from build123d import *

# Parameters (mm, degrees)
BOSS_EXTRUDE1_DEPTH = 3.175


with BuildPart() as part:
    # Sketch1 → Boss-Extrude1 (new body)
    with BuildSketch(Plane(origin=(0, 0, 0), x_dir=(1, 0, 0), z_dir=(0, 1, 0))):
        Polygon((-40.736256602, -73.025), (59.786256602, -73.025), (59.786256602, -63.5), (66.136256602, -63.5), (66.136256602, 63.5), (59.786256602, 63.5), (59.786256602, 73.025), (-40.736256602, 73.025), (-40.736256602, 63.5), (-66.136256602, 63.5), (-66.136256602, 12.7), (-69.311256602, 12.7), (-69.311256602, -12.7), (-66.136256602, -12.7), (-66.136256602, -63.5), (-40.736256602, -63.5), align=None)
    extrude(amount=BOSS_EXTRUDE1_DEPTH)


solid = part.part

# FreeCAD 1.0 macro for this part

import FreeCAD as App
import Part
import Sketcher
Q = App.Units.Quantity

doc = App.newDocument("Part")
body = doc.addObject("PartDesign::Body", "Body")

# Sketch on XZ plane
sketch1 = body.newObject("Sketcher::SketchObject", "Sketch")
sketch1.AttachmentSupport = (doc.getObject("XZ_Plane"), [""])
sketch1.MapMode = "FlatFace"
sketch1.addGeometry([
    Part.LineSegment(App.Vector(-40.7, 73, 0), App.Vector(59.8, 73, 0)),  # 0
    Part.LineSegment(App.Vector(59.8, 73, 0), App.Vector(59.8, 63.5, 0)),  # 1
    Part.LineSegment(App.Vector(59.8, 63.5, 0), App.Vector(66.1, 63.5, 0)),  # 2
    Part.LineSegment(App.Vector(66.1, 63.5, 0), App.Vector(66.1, -63.5, 0)),  # 3
    Part.LineSegment(App.Vector(66.1, -63.5, 0), App.Vector(59.8, -63.5, 0)),  # 4
    Part.LineSegment(App.Vector(59.8, -63.5, 0), App.Vector(59.8, -73, 0)),  # 5
    Part.LineSegment(App.Vector(59.8, -73, 0), App.Vector(-40.7, -73, 0)),  # 6
    Part.LineSegment(App.Vector(-40.7, -73, 0), App.Vector(-40.7, -63.5, 0)),  # 7
    Part.LineSegment(App.Vector(-40.7, -63.5, 0), App.Vector(-66.1, -63.5, 0)),  # 8
    Part.LineSegment(App.Vector(-66.1, -63.5, 0), App.Vector(-66.1, -12.7, 0)),  # 9
    Part.LineSegment(App.Vector(-66.1, -12.7, 0), App.Vector(-69.3, -12.7, 0)),  # 10
    Part.LineSegment(App.Vector(-69.3, -12.7, 0), App.Vector(-69.3, 12.7, 0)),  # 11
    Part.LineSegment(App.Vector(-69.3, 12.7, 0), App.Vector(-66.1, 12.7, 0)),  # 12
    Part.LineSegment(App.Vector(-66.1, 12.7, 0), App.Vector(-66.1, 63.5, 0)),  # 13
    Part.LineSegment(App.Vector(-66.1, 63.5, 0), App.Vector(-40.7, 63.5, 0)),  # 14
    Part.LineSegment(App.Vector(-40.7, 63.5, 0), App.Vector(-40.7, 73, 0)),  # 15
], False)
sketch1.addConstraint([
    Sketcher.Constraint("Coincident", 0, 2, 1, 1),
    Sketcher.Constraint("Coincident", 1, 2, 2, 1),
    Sketcher.Constraint("Coincident", 2, 2, 3, 1),
    Sketcher.Constraint("Coincident", 3, 2, 4, 1),
    Sketcher.Constraint("Coincident", 4, 2, 5, 1),
    Sketcher.Constraint("Coincident", 5, 2, 6, 1),
    Sketcher.Constraint("Coincident", 6, 2, 7, 1),
    Sketcher.Constraint("Coincident", 7, 2, 8, 1),
    Sketcher.Constraint("Coincident", 8, 2, 9, 1),
    Sketcher.Constraint("Coincident", 9, 2, 10, 1),
    Sketcher.Constraint("Coincident", 10, 2, 11, 1),
    Sketcher.Constraint("Coincident", 11, 2, 12, 1),
    Sketcher.Constraint("Coincident", 12, 2, 13, 1),
    Sketcher.Constraint("Coincident", 13, 2, 14, 1),
    Sketcher.Constraint("Coincident", 14, 2, 15, 1),
    Sketcher.Constraint("Coincident", 15, 2, 0, 1),
    Sketcher.Constraint("Horizontal", 0),
    Sketcher.Constraint("Vertical", 1),
    Sketcher.Constraint("Horizontal", 2),
    Sketcher.Constraint("Vertical", 3),
    Sketcher.Constraint("Horizontal", 4),
    Sketcher.Constraint("Vertical", 5),
    Sketcher.Constraint("Horizontal", 6),
    Sketcher.Constraint("Vertical", 7),
    Sketcher.Constraint("Horizontal", 8),
    Sketcher.Constraint("Vertical", 9),
    Sketcher.Constraint("Horizontal", 10),
    Sketcher.Constraint("Vertical", 11),
    Sketcher.Constraint("Horizontal", 12),
    Sketcher.Constraint("Vertical", 13),
    Sketcher.Constraint("Horizontal", 14),
    Sketcher.Constraint("Vertical", 15),
    Sketcher.Constraint("Symmetric", 2, 2, 8, 2, -1, 1),
    Sketcher.Constraint("Symmetric", 3, 2, 13, 2, -1, 1),
    Sketcher.Constraint("Symmetric", 1, 2, 4, 2, -1),
    Sketcher.Constraint("Symmetric", 6, 2, 15, 2, -1),
    Sketcher.Constraint("Equal", 14, 11),
    Sketcher.Constraint("Equal", 9, 13),
    Sketcher.Constraint("DistanceX", 8, 2, 8, 1, Q("1 in")),
    Sketcher.Constraint("DistanceY", 3, 2, 3, 1, Q("5 in")),
    Sketcher.Constraint("DistanceX", 2, 1, 2, 2, Q("0.25 in")),
    Sketcher.Constraint("DistanceX", 10, 2, 10, 1, Q("0.125 in")),
    Sketcher.Constraint("DistanceY", 1, 2, 1, 1, Q("0.375 in")),
    Sketcher.Constraint("DistanceX", 0, 1, 0, 2, 100.522513),
])
pad1 = body.newObject("PartDesign::Pad", "Pad")
pad1.Profile = sketch1
pad1.Length = Q("0.125 in")
pad1.Reversed = True

doc.recompute()
